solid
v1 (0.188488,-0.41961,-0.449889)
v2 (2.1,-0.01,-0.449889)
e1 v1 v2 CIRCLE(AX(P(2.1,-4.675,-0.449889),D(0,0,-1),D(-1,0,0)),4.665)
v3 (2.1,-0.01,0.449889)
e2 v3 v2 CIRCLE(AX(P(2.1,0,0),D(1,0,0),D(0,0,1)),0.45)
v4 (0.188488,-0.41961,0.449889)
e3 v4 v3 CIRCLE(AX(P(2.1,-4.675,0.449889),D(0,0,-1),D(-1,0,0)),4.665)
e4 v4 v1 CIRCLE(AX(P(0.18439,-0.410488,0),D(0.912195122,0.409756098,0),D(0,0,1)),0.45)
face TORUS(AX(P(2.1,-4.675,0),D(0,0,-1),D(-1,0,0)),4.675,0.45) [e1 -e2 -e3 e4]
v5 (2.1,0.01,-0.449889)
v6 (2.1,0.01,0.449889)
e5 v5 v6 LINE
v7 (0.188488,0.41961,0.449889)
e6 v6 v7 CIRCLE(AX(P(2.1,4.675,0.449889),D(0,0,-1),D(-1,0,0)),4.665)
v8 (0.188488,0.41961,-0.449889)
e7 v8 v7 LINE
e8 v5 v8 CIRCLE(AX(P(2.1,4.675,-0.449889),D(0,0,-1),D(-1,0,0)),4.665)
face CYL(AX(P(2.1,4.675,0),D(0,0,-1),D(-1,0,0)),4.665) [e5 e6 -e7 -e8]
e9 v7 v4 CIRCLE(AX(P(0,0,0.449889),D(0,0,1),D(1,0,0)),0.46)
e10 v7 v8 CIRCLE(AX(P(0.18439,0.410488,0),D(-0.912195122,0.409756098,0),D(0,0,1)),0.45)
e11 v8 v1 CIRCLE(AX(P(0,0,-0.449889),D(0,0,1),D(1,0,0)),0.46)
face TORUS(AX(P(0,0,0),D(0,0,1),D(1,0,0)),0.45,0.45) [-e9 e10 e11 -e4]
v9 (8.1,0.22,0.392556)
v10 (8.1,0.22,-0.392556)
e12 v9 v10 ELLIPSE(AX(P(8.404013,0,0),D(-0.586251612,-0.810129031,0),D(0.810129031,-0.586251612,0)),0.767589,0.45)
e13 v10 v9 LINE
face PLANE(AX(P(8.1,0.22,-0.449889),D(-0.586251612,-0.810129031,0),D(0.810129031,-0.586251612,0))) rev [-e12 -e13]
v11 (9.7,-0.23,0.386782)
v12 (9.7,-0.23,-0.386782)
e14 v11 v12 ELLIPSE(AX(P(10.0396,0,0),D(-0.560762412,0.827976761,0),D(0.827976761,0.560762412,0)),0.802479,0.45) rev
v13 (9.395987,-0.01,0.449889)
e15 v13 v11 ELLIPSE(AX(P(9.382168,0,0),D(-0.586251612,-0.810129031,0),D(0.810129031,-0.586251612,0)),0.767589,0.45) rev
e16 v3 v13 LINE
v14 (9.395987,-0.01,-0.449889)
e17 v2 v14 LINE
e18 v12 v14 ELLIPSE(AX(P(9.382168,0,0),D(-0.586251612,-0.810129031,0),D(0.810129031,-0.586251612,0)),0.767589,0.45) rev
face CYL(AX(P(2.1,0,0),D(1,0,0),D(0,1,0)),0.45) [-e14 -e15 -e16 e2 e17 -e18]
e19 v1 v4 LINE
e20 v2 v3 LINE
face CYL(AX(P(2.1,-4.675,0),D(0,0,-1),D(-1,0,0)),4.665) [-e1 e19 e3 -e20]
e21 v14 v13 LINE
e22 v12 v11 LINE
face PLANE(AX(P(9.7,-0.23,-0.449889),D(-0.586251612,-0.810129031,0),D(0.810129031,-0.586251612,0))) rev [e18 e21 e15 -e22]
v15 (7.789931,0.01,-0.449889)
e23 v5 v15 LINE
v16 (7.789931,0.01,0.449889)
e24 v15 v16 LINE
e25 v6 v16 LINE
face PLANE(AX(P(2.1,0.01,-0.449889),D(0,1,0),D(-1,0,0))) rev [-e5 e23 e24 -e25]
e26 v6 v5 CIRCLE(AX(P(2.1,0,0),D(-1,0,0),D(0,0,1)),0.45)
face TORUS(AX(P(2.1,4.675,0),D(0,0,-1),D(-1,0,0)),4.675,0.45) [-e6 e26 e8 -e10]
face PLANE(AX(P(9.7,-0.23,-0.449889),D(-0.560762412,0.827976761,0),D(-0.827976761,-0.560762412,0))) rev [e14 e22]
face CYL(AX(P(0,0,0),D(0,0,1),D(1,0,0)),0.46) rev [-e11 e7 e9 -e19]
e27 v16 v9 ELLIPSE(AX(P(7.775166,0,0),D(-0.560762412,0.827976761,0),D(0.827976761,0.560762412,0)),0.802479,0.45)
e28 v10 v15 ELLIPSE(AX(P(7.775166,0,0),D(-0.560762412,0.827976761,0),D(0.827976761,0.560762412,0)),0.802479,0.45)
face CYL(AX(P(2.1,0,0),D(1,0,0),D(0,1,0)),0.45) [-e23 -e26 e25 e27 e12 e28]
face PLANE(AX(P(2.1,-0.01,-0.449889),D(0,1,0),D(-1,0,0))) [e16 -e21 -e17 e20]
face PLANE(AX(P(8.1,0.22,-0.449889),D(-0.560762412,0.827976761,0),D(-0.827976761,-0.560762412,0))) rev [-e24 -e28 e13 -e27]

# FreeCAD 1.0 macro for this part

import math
import FreeCAD as App
import Part
import Sketcher

V = App.Vector

doc = App.newDocument("Part")
params = doc.addObject("Spreadsheet::Sheet", "Params")
for row, (alias, value) in enumerate([
    ("sketch1_radius", "0.45 mm"),
    ("sketch2_radius", "0.9 mm"),
    ("sketch2_width", "6 mm"),
    ("sketch2_width2", "7.6 mm"),
    ("sketch3_height", "0.9 mm"),
], start=1):
    params.set(f"A{row}", alias)
    params.set(f"B{row}", "=" + value)
    params.setAlias(f"B{row}", alias)

body = doc.addObject("PartDesign::Body", "Body")

# Sketch on YZ plane
sketch1 = body.newObject("Sketcher::SketchObject", "Sketch")
sketch1.AttachmentSupport = (doc.getObject("YZ_Plane"), [""])
sketch1.MapMode = "FlatFace"
sketch1.AttachmentOffset = App.Placement(V(0, 0, 8.1), App.Rotation())
sketch1.addGeometry([
    Part.LineSegment(V(0.01, -0.45, 0), V(0.01, 0.45, 0)),
    Part.ArcOfCircle(Part.Circle(V(0, 0, 0), V(0, 0, 1), 0.45), math.radians(-89), math.radians(89)),
], False)
sketch1.addConstraint([
    Sketcher.Constraint("Coincident", 0, 1, 1, 1),
    Sketcher.Constraint("Coincident", 1, 2, 0, 2),
    Sketcher.Constraint("Vertical", 0),
    Sketcher.Constraint("Coincident", 1, 3, -1, 1),
    Sketcher.Constraint("Radius", 1, 0.45),
    Sketcher.Constraint("DistanceX", -1, 1, 0, 1, 0.01),
])
sketch1.setExpression("Constraints[4]", "Params.sketch1_radius")

# Sketch on XY plane
sketch2 = body.newObject("Sketcher::SketchObject", "Sketch001")
sketch2.AttachmentSupport = (doc.getObject("XY_Plane"), [""])
sketch2.MapMode = "FlatFace"
sketch2.addGeometry([
    Part.LineSegment(V(8.1, 0.5, 0), V(2.1, 0.5, 0)),  # 0
    Part.ArcOfCircle(Part.Circle(V(2.1, 4.7, 0), V(0, 0, 1), 4.2), math.radians(-114), math.radians(-90)),  # 1
    Part.ArcOfCircle(Part.Circle(V(0, 0, 0), V(0, 0, 1), 0.9), math.radians(66), math.radians(294)),  # 2
    Part.ArcOfCircle(Part.Circle(V(2.1, -4.7, 0), V(0, 0, 1), 4.2), math.radians(90), math.radians(114)),  # 3
    Part.LineSegment(V(2.1, -0.5, 0), V(9.7, -0.5, 0)),  # 4
], False)
sketch2.addConstraint([
    Sketcher.Constraint("Tangent", 0, 2, 1, 2),
    Sketcher.Constraint("Tangent", 1, 1, 2, 1),
    Sketcher.Constraint("Tangent", 2, 2, 3, 2),
    Sketcher.Constraint("Tangent", 3, 1, 4, 1),
    Sketcher.Constraint("Horizontal", 0),
    Sketcher.Constraint("Horizontal", 4),
    Sketcher.Constraint("Coincident", 2, 3, -1, 1),
    Sketcher.Constraint("Equal", 1, 3),
    Sketcher.Constraint("Vertical", 1, 3, 3, 3),
    Sketcher.Constraint("Radius", 2, 0.9),
    Sketcher.Constraint("DistanceX", 0, 2, 0, 1, 6.0),
    Sketcher.Constraint("DistanceX", 4, 1, 4, 2, 7.6),
    Sketcher.Constraint("Radius", 1, 4.225),
    Sketcher.Constraint("DistanceX", -1, 1, 1, 3, 2.1),
])
sketch2.setExpression("Constraints[9]", "Params.sketch2_radius")
sketch2.setExpression("Constraints[10]", "Params.sketch2_width")
sketch2.setExpression("Constraints[11]", "Params.sketch2_width2")
doc.recompute()

additivepipe = body.newObject("PartDesign::AdditivePipe", "AdditivePipe")
additivepipe.Profile = sketch1
additivepipe.Spine = (sketch2, ["Edge1", "Edge2", "Edge3", "Edge4", "Edge5"])

# Sketch on XY plane
sketch3 = body.newObject("Sketcher::SketchObject", "Sketch002")
sketch3.AttachmentSupport = (doc.getObject("XY_Plane"), [""])
sketch3.MapMode = "FlatFace"
sketch3.addGeometry([
    Part.LineSegment(V(7.78, 0.45, 0), V(8.1, 0.22, 0)),  # 0
    Part.LineSegment(V(8.1, 0.22, 0), V(7.78, 0, 0)),  # 1
    Part.LineSegment(V(7.78, 0, 0), V(9.38, 0, 0)),  # 2
    Part.LineSegment(V(9.38, 0, 0), V(9.7, -0.23, 0)),  # 3
    Part.LineSegment(V(9.7, -0.23, 0), V(9.38, -0.45, 0)),  # 4
    Part.LineSegment(V(9.38, -0.45, 0), V(9.71, -0.45, 0)),  # 5
    Part.LineSegment(V(9.71, -0.45, 0), V(9.71, 0.45, 0)),  # 6
    Part.LineSegment(V(9.71, 0.45, 0), V(7.78, 0.45, 0)),  # 7
], False)
sketch3.addConstraint([
    Sketcher.Constraint("Coincident", 0, 2, 1, 1),
    Sketcher.Constraint("Coincident", 1, 2, 2, 1),
    Sketcher.Constraint("Coincident", 2, 2, 3, 1),
    Sketcher.Constraint("Coincident", 3, 2, 4, 1),
    Sketcher.Constraint("Coincident", 4, 2, 5, 1),
    Sketcher.Constraint("Coincident", 5, 2, 6, 1),
    Sketcher.Constraint("Coincident", 6, 2, 7, 1),
    Sketcher.Constraint("Coincident", 7, 2, 0, 1),
    Sketcher.Constraint("Horizontal", 2),
    Sketcher.Constraint("Horizontal", 5),
    Sketcher.Constraint("Vertical", 6),
    Sketcher.Constraint("Horizontal", 7),
    Sketcher.Constraint("PointOnObject", 1, 2, -1),
    Sketcher.Constraint("Parallel", 0, 3),
    Sketcher.Constraint("Parallel", 1, 4),
    Sketcher.Constraint("Equal", 0, 1),
    Sketcher.Constraint("Equal", 1, 3),
    Sketcher.Constraint("Equal", 3, 4),
    Sketcher.Constraint("DistanceY", 6, 1, 6, 2, 0.9),
    Sketcher.Constraint("DistanceX", -1, 1, 0, 2, 8.1),
    Sketcher.Constraint("DistanceX", -1, 1, 3, 2, 9.7),
    Sketcher.Constraint("DistanceY", -1, 1, 0, 2, 0.22),
    Sketcher.Constraint("DistanceX", -1, 1, 5, 2, 9.71),
    Sketcher.Constraint("DistanceX", 2, 1, 2, 2, 1.607002),
])
sketch3.setExpression("Constraints[18]", "Params.sketch3_height")
pocket1 = body.newObject("PartDesign::Pocket", "Pocket")
pocket1.Profile = sketch3
pocket1.Type = "ThroughAll"
pocket1.Midplane = True

doc.recompute()
